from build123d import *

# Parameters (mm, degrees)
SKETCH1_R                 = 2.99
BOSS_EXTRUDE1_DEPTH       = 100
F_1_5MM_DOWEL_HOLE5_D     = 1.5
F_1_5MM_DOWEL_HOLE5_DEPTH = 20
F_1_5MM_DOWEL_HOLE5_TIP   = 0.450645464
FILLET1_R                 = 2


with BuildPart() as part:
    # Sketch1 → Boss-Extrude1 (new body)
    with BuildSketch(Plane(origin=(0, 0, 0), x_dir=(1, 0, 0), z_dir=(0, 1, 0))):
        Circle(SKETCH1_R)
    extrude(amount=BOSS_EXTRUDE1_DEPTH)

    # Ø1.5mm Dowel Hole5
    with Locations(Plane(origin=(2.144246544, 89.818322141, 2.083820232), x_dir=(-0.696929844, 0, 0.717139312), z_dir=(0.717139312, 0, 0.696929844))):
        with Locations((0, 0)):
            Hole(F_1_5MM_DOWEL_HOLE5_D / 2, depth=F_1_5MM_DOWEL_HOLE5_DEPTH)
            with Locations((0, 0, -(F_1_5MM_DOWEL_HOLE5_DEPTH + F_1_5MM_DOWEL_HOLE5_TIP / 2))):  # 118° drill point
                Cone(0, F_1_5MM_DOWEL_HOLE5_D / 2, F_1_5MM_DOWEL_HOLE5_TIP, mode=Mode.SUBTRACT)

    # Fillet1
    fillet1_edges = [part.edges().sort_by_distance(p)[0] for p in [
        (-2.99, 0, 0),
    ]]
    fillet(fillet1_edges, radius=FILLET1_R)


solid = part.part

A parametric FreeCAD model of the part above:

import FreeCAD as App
import Part
import Sketcher

V = App.Vector


def edges_at(feature, points):
    """Names of the edges that pass closest to the given points."""
    edges = feature.Shape.Edges
    near = lambda p: min(range(len(edges)), key=lambda i: edges[i].distToShape(Part.Vertex(*p))[0])
    return sorted({f"Edge{near(p) + 1}" for p in points})

doc = App.newDocument("Part")
params = doc.addObject("Spreadsheet::Sheet", "Params")
for row, (alias, value) in enumerate([
    ("sketch1_diameter", "5.98 mm"),
    ("pad1_length", "100 mm"),
    ("sketch2_diameter", "1.5 mm"),
    ("hole_diameter", "1.5 mm"),
    ("hole_depth", "20 mm"),
    ("fillet_radius", "2 mm"),
], start=1):
    params.set(f"A{row}", alias)
    params.set(f"B{row}", "=" + value)
    params.setAlias(f"B{row}", alias)

body = doc.addObject("PartDesign::Body", "Body")

sketch1 = body.newObject("Sketcher::SketchObject", "Sketch")
sketch1.AttachmentSupport = (doc.getObject("XZ_Plane"), [""])
sketch1.MapMode = "FlatFace"
sketch1.addGeometry(Part.Circle(V(0, 0, 0), V(0, 0, 1), 2.99), False)
sketch1.addConstraint([
    Sketcher.Constraint("Coincident", 0, 3, -1, 1),
    Sketcher.Constraint("Diameter", 0, 5.98),
])
sketch1.setExpression("Constraints[1]", "Params.sketch1_diameter")
pad1 = body.newObject("PartDesign::Pad", "Pad")
pad1.Profile = sketch1
pad1.setExpression("Length", "Params.pad1_length")
pad1.Reversed = True

sketch2 = body.newObject("Sketcher::SketchObject", "Sketch001")
sketch2.Placement = App.Placement(V(2.144247, 0, 2.08382), App.Rotation(V(-0.696929844, 0, 0.717139312), V(0, -1, 0), V(0.717139312, 0, 0.696929844), "ZXY"))
sketch2.addGeometry(Part.Circle(V(0, -89.818322, 0), V(0, 0, 1), 0.75), False)
sketch2.addConstraint([
    Sketcher.Constraint("PointOnObject", 0, 3, -2),
    Sketcher.Constraint("Diameter", 0, 1.5),
    Sketcher.Constraint("DistanceY", 0, 3, -1, 1, 89.818322),
])
sketch2.setExpression("Constraints[1]", "Params.sketch2_diameter")
doc.recompute()
hole = body.newObject("PartDesign::Hole", "Hole")
hole.Profile = sketch2
hole.ThreadType = "None"
hole.setExpression("Diameter", "Params.hole_diameter")
hole.DepthType = "Dimension"
hole.setExpression("Depth", "Params.hole_depth")
hole.DrillPoint = "Angled"
hole.DrillPointAngle = 118
doc.recompute()

fillet = body.newObject("PartDesign::Fillet", "Fillet")
fillet.Base = (hole, edges_at(hole, [(-2.99, 0, 0)]))
fillet.setExpression("Radius", "Params.fillet_radius")

doc.recompute()
